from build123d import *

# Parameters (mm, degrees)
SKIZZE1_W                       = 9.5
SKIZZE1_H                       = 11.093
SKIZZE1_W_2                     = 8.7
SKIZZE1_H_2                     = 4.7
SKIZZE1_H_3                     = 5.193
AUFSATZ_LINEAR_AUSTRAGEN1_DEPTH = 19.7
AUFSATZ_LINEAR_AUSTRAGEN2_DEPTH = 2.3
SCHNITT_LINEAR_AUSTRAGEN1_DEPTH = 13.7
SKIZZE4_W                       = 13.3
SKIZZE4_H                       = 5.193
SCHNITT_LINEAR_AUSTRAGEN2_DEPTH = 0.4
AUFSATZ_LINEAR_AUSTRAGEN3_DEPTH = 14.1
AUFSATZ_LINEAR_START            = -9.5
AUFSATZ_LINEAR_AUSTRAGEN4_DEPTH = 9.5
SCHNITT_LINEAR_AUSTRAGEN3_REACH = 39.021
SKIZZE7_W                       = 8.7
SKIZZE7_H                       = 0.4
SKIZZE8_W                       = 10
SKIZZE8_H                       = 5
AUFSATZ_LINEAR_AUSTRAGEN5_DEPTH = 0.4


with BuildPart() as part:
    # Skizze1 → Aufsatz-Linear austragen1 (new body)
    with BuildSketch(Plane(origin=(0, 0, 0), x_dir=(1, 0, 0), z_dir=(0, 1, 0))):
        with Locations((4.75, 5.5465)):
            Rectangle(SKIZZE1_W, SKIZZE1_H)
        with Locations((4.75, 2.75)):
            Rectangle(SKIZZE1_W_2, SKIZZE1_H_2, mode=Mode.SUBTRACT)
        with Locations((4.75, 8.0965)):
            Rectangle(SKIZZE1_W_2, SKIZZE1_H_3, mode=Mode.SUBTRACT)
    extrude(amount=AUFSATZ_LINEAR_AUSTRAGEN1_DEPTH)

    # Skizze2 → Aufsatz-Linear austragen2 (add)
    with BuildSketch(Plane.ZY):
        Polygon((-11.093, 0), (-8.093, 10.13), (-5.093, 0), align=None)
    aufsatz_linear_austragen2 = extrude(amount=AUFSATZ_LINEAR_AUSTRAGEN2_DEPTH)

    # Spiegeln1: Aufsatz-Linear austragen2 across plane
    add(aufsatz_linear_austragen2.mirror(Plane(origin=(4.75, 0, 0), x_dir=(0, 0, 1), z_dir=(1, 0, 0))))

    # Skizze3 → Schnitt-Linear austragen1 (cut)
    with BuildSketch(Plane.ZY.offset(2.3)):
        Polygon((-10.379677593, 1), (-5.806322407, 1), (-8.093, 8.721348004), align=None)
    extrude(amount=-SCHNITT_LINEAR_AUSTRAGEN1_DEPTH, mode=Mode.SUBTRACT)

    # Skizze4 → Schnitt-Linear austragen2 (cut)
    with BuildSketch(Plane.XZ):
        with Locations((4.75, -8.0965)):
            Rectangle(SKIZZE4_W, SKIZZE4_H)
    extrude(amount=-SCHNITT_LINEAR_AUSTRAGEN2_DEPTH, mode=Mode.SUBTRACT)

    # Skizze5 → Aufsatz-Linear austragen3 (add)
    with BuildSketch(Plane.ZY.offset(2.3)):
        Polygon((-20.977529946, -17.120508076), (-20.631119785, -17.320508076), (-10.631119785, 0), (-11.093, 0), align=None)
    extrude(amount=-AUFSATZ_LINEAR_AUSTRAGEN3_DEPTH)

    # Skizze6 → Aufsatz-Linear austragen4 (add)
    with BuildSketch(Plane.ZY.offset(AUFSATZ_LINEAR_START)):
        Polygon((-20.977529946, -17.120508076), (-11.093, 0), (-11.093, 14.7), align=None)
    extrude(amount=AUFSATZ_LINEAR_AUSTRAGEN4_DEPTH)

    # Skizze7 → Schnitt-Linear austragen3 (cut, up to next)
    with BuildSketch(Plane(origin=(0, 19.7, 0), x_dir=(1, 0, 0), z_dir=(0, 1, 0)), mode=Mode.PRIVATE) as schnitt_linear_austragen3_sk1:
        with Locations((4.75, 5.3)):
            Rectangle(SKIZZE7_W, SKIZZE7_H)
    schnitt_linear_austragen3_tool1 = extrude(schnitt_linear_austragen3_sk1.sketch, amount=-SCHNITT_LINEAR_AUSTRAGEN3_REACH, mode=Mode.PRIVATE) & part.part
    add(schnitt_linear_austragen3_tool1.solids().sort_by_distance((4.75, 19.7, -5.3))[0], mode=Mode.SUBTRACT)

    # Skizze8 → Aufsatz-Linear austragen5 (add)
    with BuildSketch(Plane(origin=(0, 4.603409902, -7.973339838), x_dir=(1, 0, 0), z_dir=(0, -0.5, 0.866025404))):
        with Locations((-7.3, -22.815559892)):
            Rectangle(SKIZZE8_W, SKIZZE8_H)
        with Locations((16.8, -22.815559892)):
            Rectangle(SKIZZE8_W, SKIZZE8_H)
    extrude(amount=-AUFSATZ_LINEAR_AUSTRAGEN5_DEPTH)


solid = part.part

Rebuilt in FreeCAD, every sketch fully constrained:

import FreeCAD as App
import Part
import Sketcher
Q = App.Units.Quantity


def add_polygon(sketch, points):
    """Adds a closed chain of lines whose ends are joined by coincident constraints."""
    first, n = sketch.GeometryCount, len(points)
    for a, b in zip(points, points[1:] + points[:1]):
        sketch.addGeometry(Part.LineSegment(App.Vector(*a, 0), App.Vector(*b, 0)), False)
    for i in range(n):
        sketch.addConstraint(Sketcher.Constraint("Coincident", first + i, 2, first + (i + 1) % n, 1))

doc = App.newDocument("Part")
params = doc.addObject("Spreadsheet::Sheet", "Params")
for row, (alias, value) in enumerate([
    ("sketch1_width", "9.5 mm"),
    ("sketch1_width2", "8.7 mm"),
    ("sketch1_height", "4.7 mm"),
    ("pad1_length", "19.7 mm"),
    ("sketch2_height", "6 mm"),
    ("pad2_length", "2.3 mm"),
    ("pocket1_length", "13.7 mm"),
    ("sketch4_width", "13.3 mm"),
    ("pocket2_length", "0.4 mm"),
    ("sketch5_length", "20 mm"),
    ("sketch5_length2", "0.4 mm"),
    ("pad3_length", "14.1 mm"),
    ("sketch6_width", "14.7 mm"),
    ("pad4_length", "9.5 mm"),
    ("sketch7_width", "8.7 mm"),
    ("sketch7_height", "0.4 mm"),
    ("sketch8_width", "10 mm"),
    ("sketch8_height", "5 mm"),
    ("pad5_length", "0.4 mm"),
], start=1):
    params.set(f"A{row}", alias)
    params.set(f"B{row}", "=" + value)
    params.setAlias(f"B{row}", alias)

body = doc.addObject("PartDesign::Body", "Body")

# Sketch on XZ plane
sketch1 = body.newObject("Sketcher::SketchObject", "Sketch")
sketch1.AttachmentSupport = (doc.getObject("XZ_Plane"), [""])
sketch1.MapMode = "FlatFace"
add_polygon(sketch1, [(0, -11.1), (0, 0), (9.5, 0), (9.5, -11.1)])  # lines 0-3
add_polygon(sketch1, [(9.1, -0.4), (0.4, -0.4), (0.4, -5.1), (9.1, -5.1)])  # lines 4-7
add_polygon(sketch1, [(9.1, -5.5), (0.4, -5.5), (0.4, -10.7), (9.1, -10.7)])  # lines 8-11
sketch1.addConstraint(Sketcher.Constraint("Vertical", 0))
sketch1.addConstraint(Sketcher.Constraint("Horizontal", 1))
sketch1.addConstraint(Sketcher.Constraint("Vertical", 2))
sketch1.addConstraint(Sketcher.Constraint("Horizontal", 3))
sketch1.addConstraint(Sketcher.Constraint("Horizontal", 4))
sketch1.addConstraint(Sketcher.Constraint("Vertical", 5))
sketch1.addConstraint(Sketcher.Constraint("Horizontal", 6))
sketch1.addConstraint(Sketcher.Constraint("Vertical", 7))
sketch1.addConstraint(Sketcher.Constraint("Horizontal", 8))
sketch1.addConstraint(Sketcher.Constraint("Vertical", 9))
sketch1.addConstraint(Sketcher.Constraint("Horizontal", 10))
sketch1.addConstraint(Sketcher.Constraint("Vertical", 11))
sketch1.addConstraint(Sketcher.Constraint("Coincident", 0, 2, -1, 1))
sketch1.addConstraint(Sketcher.Constraint("Vertical", 5, 2, 8, 2))
sketch1.addConstraint(Sketcher.Constraint("Vertical", 7, 2, 10, 2))
sketch1.addConstraint(Sketcher.Constraint("DistanceX", 1, 1, 1, 2, Q("9.5 mm")))
sketch1.addConstraint(Sketcher.Constraint("DistanceX", 4, 2, 4, 1, Q("8.7 mm")))
sketch1.addConstraint(Sketcher.Constraint("DistanceY", 5, 2, 5, 1, Q("4.7 mm")))
sketch1.addConstraint(Sketcher.Constraint("DistanceX", -1, 1, 4, 2, Q("0.4 mm")))
sketch1.addConstraint(Sketcher.Constraint("DistanceY", 4, 2, -1, 1, Q("0.4 mm")))
sketch1.addConstraint(Sketcher.Constraint("DistanceY", 8, 2, -1, 1, Q("5.5 mm")))
sketch1.addConstraint(Sketcher.Constraint("DistanceY", 3, 2, 9, 2, Q("0.4 mm")))
sketch1.addConstraint(Sketcher.Constraint("DistanceY", 0, 1, 0, 2, Q("11.093 mm")))
sketch1.setExpression("Constraints[27]", "Params.sketch1_width")
sketch1.setExpression("Constraints[28]", "Params.sketch1_width2")
sketch1.setExpression("Constraints[29]", "Params.sketch1_height")
pad1 = body.newObject("PartDesign::Pad", "Pad")
pad1.Profile = sketch1
pad1.setExpression("Length", "Params.pad1_length")
pad1.Reversed = True

# Sketch on YZ plane
sketch2 = body.newObject("Sketcher::SketchObject", "Sketch001")
sketch2.AttachmentSupport = (doc.getObject("YZ_Plane"), [""])
sketch2.MapMode = "FlatFace"
add_polygon(sketch2, [(10, -8), (0, -11), (0, -5)])  # lines 0-2
sketch2.addConstraint(Sketcher.Constraint("Vertical", 1))
sketch2.addConstraint(Sketcher.Constraint("PointOnObject", 0, 2, -2))
sketch2.addConstraint(Sketcher.Constraint("Equal", 0, 2))
sketch2.addConstraint(Sketcher.Constraint("DistanceY", 1, 1, 1, 2, Q("6 mm")))
sketch2.addConstraint(Sketcher.Constraint("DistanceX", -1, 1, 2, 2, Q("10.13 mm")))
sketch2.addConstraint(Sketcher.Constraint("DistanceY", 0, 2, -1, 1, Q("11.093 mm")))
sketch2.setExpression("Constraints[6]", "Params.sketch2_height")
pad2 = body.newObject("PartDesign::Pad", "Pad001")
pad2.Profile = sketch2
pad2.setExpression("Length", "Params.pad2_length")
pad2.Reversed = True
doc.recompute()

datumplane = body.newObject("PartDesign::Plane", "DatumPlane")
datumplane.AttachmentSupport = (doc.getObject("YZ_Plane"), [""])
datumplane.MapMode = "FlatFace"
datumplane.AttachmentOffset = App.Placement(App.Vector(0, 0, 4.75), App.Rotation())
mirrored = body.newObject("PartDesign::Mirrored", "Mirrored")
mirrored.Originals = [pad2]
mirrored.MirrorPlane = (datumplane, [""])
body.Tip = mirrored

# Sketch on YZ plane
sketch3 = body.newObject("Sketcher::SketchObject", "Sketch002")
sketch3.AttachmentSupport = (doc.getObject("YZ_Plane"), [""])
sketch3.MapMode = "FlatFace"
sketch3.AttachmentOffset = App.Placement(App.Vector(0, 0, -2.3), App.Rotation())
add_polygon(sketch3, [(1, -10.4), (1, -5.8), (8.7, -8.1)])  # lines 0-2
sketch3.addConstraint(Sketcher.Constraint("Vertical", 0))
sketch3.addConstraint(Sketcher.Constraint("Equal", 1, 2))
sketch3.addConstraint(Sketcher.Constraint("DistanceX", -1, 1, 0, 2, Q("1 mm")))
sketch3.addConstraint(Sketcher.Constraint("DistanceY", 1, 2, -1, 1, Q("8.093 mm")))
sketch3.addConstraint(Sketcher.Constraint("DistanceY", 0, 1, 0, 2, Q("4.573355 mm")))
sketch3.addConstraint(Sketcher.Constraint("DistanceX", -1, 1, 1, 2, Q("8.721348 mm")))
pocket1 = body.newObject("PartDesign::Pocket", "Pocket")
pocket1.Profile = sketch3
pocket1.setExpression("Length", "Params.pocket1_length")
pocket1.Reversed = True

# Sketch on XZ plane
sketch4 = body.newObject("Sketcher::SketchObject", "Sketch003")
sketch4.AttachmentSupport = (doc.getObject("XZ_Plane"), [""])
sketch4.MapMode = "FlatFace"
add_polygon(sketch4, [(-2, -6), (-2, -11), (11, -11), (11, -6)])  # lines 0-3
sketch4.addConstraint(Sketcher.Constraint("Vertical", 0))
sketch4.addConstraint(Sketcher.Constraint("Horizontal", 1))
sketch4.addConstraint(Sketcher.Constraint("Vertical", 2))
sketch4.addConstraint(Sketcher.Constraint("Horizontal", 3))
sketch4.addConstraint(Sketcher.Constraint("DistanceX", 1, 1, 1, 2, Q("13.3 mm")))
sketch4.addConstraint(Sketcher.Constraint("DistanceX", 0, 2, -1, 1, Q("1.9 mm")))
sketch4.addConstraint(Sketcher.Constraint("DistanceY", 2, 2, -1, 1, Q("5.5 mm")))
sketch4.addConstraint(Sketcher.Constraint("DistanceY", 0, 2, 0, 1, Q("5.193 mm")))
sketch4.setExpression("Constraints[8]", "Params.sketch4_width")
pocket2 = body.newObject("PartDesign::Pocket", "Pocket001")
pocket2.Profile = sketch4
pocket2.setExpression("Length", "Params.pocket2_length")

# Sketch on YZ plane
sketch5 = body.newObject("Sketcher::SketchObject", "Sketch004")
sketch5.AttachmentSupport = (doc.getObject("YZ_Plane"), [""])
sketch5.MapMode = "FlatFace"
sketch5.AttachmentOffset = App.Placement(App.Vector(0, 0, -2.3), App.Rotation())
add_polygon(sketch5, [(-17.12, -20.98), (-17.32, -20.63), (0, -10.63), (0, -11.09)])  # lines 0-3
sketch5.addConstraint(Sketcher.Constraint("Vertical", 2))
sketch5.addConstraint(Sketcher.Constraint("PointOnObject", 1, 2, -2))
sketch5.addConstraint(Sketcher.Constraint("Perpendicular", 0, 1))
sketch5.addConstraint(Sketcher.Constraint("Parallel", 1, 3))
sketch5.addConstraint(Sketcher.Constraint("Angle", 0, Q("120 deg")))
sketch5.addConstraint(Sketcher.Constraint("Distance", 1, Q("20 mm")))
sketch5.addConstraint(Sketcher.Constraint("Distance", 0, Q("0.4 mm")))
sketch5.addConstraint(Sketcher.Constraint("DistanceY", 2, 2, -1, 1, Q("11.093 mm")))
sketch5.setExpression("Constraints[9]", "Params.sketch5_length")
sketch5.setExpression("Constraints[10]", "Params.sketch5_length2")
pad3 = body.newObject("PartDesign::Pad", "Pad002")
pad3.Profile = sketch5
pad3.setExpression("Length", "Params.pad3_length")

# Sketch on YZ plane
sketch6 = body.newObject("Sketcher::SketchObject", "Sketch005")
sketch6.AttachmentSupport = (doc.getObject("YZ_Plane"), [""])
sketch6.MapMode = "FlatFace"
sketch6.AttachmentOffset = App.Placement(App.Vector(0, 0, 9.5), App.Rotation())
add_polygon(sketch6, [(-17, -21), (0, -11), (15, -11)])  # lines 0-2
sketch6.addConstraint(Sketcher.Constraint("Horizontal", 1))
sketch6.addConstraint(Sketcher.Constraint("PointOnObject", 0, 2, -2))
sketch6.addConstraint(Sketcher.Constraint("Angle", 0, Q("30 deg")))
sketch6.addConstraint(Sketcher.Constraint("DistanceX", 1, 1, 1, 2, Q("14.7 mm")))
sketch6.addConstraint(Sketcher.Constraint("DistanceY", 0, 2, -1, 1, Q("11.093 mm")))
sketch6.addConstraint(Sketcher.Constraint("Distance", 0, Q("19.76906 mm")))
sketch6.setExpression("Constraints[6]", "Params.sketch6_width")
pad4 = body.newObject("PartDesign::Pad", "Pad003")
pad4.Profile = sketch6
pad4.setExpression("Length", "Params.pad4_length")
pad4.Reversed = True

# Sketch on XZ plane
sketch7 = body.newObject("Sketcher::SketchObject", "Sketch006")
sketch7.AttachmentSupport = (doc.getObject("XZ_Plane"), [""])
sketch7.MapMode = "FlatFace"
sketch7.AttachmentOffset = App.Placement(App.Vector(0, 0, -19.7), App.Rotation())
add_polygon(sketch7, [(0.4, -5.5), (0.4, -5.1), (9.1, -5.1), (9.1, -5.5)])  # lines 0-3
sketch7.addConstraint(Sketcher.Constraint("Vertical", 0))
sketch7.addConstraint(Sketcher.Constraint("Horizontal", 1))
sketch7.addConstraint(Sketcher.Constraint("Vertical", 2))
sketch7.addConstraint(Sketcher.Constraint("Horizontal", 3))
sketch7.addConstraint(Sketcher.Constraint("DistanceX", 1, 1, 1, 2, Q("8.7 mm")))
sketch7.addConstraint(Sketcher.Constraint("DistanceY", 0, 1, 0, 2, Q("0.4 mm")))
sketch7.addConstraint(Sketcher.Constraint("DistanceX", -1, 1, 0, 2, Q("0.4 mm")))
sketch7.addConstraint(Sketcher.Constraint("DistanceY", 0, 2, -1, 1, Q("5.1 mm")))
sketch7.setExpression("Constraints[8]", "Params.sketch7_width")
sketch7.setExpression("Constraints[9]", "Params.sketch7_height")
pocket3 = body.newObject("PartDesign::Pocket", "Pocket002")
pocket3.Profile = sketch7
pocket3.Type = "UpToFirst"
pocket3.Reversed = True

# Sketch on an angled plane
sketch8 = body.newObject("Sketcher::SketchObject", "Sketch007")
sketch8.Placement = App.Placement(App.Vector(0, 4.60341, -7.97334), App.Rotation(App.Vector(1, 0, 0), App.Vector(0, 0.866025404, 0.5), App.Vector(0, -0.5, 0.866025404), "ZXY"))
add_polygon(sketch8, [(-12, -20), (-12, -25), (-2, -25), (-2, -20)])  # lines 0-3
add_polygon(sketch8, [(12, -20), (12, -25), (22, -25), (22, -20)])  # lines 4-7
sketch8.addConstraint(Sketcher.Constraint("Vertical", 0))
sketch8.addConstraint(Sketcher.Constraint("Horizontal", 1))
sketch8.addConstraint(Sketcher.Constraint("Vertical", 2))
sketch8.addConstraint(Sketcher.Constraint("Horizontal", 3))
sketch8.addConstraint(Sketcher.Constraint("Vertical", 4))
sketch8.addConstraint(Sketcher.Constraint("Horizontal", 5))
sketch8.addConstraint(Sketcher.Constraint("Vertical", 6))
sketch8.addConstraint(Sketcher.Constraint("Horizontal", 7))
sketch8.addConstraint(Sketcher.Constraint("Horizontal", 1, 2, 4, 2))
sketch8.addConstraint(Sketcher.Constraint("Horizontal", 3, 2, 6, 2))
sketch8.addConstraint(Sketcher.Constraint("Equal", 3, 5))
sketch8.addConstraint(Sketcher.Constraint("DistanceX", 1, 1, 1, 2, Q("10 mm")))
sketch8.addConstraint(Sketcher.Constraint("DistanceY", 0, 2, 0, 1, Q("5 mm")))
sketch8.addConstraint(Sketcher.Constraint("DistanceX", 0, 2, -1, 1, Q("12.3 mm")))
sketch8.addConstraint(Sketcher.Constraint("DistanceX", -1, 1, 4, 2, Q("11.8 mm")))
sketch8.addConstraint(Sketcher.Constraint("DistanceY", 0, 2, -1, 1, Q("25.31556 mm")))
sketch8.setExpression("Constraints[19]", "Params.sketch8_width")
sketch8.setExpression("Constraints[20]", "Params.sketch8_height")
pad5 = body.newObject("PartDesign::Pad", "Pad004")
pad5.Profile = sketch8
pad5.setExpression("Length", "Params.pad5_length")
pad5.Reversed = True

doc.recompute()
